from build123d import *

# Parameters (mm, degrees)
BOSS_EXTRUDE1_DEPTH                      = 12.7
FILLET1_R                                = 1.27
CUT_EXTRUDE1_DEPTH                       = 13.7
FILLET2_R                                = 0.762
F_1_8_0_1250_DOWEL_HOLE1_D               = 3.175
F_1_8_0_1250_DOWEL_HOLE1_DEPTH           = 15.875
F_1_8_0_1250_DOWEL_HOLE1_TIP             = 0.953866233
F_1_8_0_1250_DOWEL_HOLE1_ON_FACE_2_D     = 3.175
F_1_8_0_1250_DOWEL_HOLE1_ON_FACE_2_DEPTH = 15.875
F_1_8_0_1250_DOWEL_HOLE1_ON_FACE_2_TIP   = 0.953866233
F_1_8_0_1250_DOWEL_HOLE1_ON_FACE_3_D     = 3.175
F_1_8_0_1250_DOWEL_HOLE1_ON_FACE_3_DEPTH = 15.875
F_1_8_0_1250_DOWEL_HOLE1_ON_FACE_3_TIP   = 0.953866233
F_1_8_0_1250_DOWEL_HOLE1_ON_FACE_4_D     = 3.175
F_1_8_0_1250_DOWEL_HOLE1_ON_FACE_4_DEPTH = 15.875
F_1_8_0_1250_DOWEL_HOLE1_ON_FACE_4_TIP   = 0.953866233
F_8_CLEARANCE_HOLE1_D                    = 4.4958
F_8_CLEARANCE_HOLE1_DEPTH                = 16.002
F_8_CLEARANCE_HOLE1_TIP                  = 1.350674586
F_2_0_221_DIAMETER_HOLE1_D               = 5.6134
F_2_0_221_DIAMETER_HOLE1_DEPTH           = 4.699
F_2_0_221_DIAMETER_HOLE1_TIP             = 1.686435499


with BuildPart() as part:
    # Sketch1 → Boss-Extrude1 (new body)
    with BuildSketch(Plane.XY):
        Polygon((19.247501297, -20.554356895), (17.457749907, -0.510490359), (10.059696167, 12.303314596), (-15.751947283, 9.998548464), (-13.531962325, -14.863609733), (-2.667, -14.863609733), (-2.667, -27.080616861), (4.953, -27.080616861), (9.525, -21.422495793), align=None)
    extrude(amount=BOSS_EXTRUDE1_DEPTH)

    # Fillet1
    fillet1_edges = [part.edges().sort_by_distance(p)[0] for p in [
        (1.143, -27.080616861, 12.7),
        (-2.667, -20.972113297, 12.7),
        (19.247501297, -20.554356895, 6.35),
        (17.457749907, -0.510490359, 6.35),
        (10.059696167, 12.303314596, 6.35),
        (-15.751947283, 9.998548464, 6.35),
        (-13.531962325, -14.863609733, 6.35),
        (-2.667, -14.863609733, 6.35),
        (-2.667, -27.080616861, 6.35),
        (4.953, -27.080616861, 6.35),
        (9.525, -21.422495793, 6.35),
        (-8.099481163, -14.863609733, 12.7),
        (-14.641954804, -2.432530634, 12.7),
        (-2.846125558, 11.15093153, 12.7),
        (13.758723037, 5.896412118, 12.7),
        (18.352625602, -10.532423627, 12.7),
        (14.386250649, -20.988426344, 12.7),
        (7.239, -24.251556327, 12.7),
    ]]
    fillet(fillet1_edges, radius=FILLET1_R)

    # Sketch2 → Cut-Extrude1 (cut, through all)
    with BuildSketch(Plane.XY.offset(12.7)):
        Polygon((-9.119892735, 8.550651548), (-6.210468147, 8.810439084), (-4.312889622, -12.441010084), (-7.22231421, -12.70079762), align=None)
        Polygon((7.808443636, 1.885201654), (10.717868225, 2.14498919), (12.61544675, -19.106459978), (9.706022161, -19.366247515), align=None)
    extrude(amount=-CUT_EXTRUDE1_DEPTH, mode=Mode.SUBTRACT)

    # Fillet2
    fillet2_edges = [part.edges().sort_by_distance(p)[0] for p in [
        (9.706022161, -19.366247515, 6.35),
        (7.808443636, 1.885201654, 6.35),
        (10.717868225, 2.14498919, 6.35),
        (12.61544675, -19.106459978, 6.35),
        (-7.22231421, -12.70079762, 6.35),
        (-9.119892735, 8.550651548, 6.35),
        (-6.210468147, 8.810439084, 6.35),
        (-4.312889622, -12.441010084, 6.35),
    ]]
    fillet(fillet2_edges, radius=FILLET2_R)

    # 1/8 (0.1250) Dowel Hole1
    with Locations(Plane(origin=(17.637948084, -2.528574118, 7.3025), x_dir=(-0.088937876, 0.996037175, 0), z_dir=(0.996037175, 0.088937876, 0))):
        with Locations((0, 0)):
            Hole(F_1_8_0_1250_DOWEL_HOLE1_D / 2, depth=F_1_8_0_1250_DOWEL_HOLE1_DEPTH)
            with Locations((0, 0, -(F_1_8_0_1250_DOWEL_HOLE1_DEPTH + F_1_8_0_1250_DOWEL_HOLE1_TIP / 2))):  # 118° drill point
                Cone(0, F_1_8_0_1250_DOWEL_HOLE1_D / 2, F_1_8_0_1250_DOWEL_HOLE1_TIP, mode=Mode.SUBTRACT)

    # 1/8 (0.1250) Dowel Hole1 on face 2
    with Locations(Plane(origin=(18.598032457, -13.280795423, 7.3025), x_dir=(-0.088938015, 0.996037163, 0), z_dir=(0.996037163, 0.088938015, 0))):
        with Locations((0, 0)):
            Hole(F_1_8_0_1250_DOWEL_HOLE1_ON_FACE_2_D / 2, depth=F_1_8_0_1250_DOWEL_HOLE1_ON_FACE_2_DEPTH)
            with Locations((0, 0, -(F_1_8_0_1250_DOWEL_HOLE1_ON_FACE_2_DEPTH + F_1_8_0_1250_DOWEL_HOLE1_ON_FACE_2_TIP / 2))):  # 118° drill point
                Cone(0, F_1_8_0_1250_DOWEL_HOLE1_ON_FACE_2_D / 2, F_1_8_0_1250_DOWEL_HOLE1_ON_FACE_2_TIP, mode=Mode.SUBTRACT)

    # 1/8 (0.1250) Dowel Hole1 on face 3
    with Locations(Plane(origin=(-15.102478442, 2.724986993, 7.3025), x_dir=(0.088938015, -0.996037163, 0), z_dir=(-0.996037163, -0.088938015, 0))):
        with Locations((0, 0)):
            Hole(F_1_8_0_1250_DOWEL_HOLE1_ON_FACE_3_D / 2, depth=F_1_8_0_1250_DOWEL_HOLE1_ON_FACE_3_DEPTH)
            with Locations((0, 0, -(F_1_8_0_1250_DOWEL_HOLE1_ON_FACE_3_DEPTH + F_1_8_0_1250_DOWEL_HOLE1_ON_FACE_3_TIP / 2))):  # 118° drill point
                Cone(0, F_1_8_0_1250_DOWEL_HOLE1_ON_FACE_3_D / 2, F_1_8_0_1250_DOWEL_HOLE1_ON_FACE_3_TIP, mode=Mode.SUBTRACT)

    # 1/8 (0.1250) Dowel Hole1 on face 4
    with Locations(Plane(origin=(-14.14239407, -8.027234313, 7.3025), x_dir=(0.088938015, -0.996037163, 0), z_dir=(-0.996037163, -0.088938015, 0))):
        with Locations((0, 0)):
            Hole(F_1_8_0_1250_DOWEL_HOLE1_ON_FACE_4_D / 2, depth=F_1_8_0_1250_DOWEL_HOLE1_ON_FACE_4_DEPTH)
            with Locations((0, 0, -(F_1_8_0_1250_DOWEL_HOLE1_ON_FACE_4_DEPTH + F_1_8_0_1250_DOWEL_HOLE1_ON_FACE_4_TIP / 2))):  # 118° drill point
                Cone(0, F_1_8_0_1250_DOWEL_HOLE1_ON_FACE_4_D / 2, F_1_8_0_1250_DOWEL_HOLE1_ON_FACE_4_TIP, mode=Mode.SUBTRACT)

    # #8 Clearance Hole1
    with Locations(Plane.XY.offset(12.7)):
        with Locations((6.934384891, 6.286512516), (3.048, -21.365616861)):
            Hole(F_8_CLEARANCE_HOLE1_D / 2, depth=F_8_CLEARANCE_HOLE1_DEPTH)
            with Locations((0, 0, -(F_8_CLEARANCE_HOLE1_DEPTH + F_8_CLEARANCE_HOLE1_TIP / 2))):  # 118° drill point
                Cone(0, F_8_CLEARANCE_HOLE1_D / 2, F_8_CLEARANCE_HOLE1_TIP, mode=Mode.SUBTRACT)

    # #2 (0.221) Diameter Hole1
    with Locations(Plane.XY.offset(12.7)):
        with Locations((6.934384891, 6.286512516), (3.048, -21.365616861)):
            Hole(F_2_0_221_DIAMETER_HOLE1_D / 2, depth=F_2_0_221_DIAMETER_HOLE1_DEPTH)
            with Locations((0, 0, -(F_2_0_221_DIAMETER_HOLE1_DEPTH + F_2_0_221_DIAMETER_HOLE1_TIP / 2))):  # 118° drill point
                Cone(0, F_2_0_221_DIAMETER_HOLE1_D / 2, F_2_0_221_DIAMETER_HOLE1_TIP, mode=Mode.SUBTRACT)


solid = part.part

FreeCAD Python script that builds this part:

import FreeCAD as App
import Part
import Sketcher
from FreeCAD import Vector
Q = App.Units.Quantity


def edges_at(feature, points):
    """Names of the edges that pass closest to the given points."""
    edges = feature.Shape.Edges
    near = lambda p: min(range(len(edges)), key=lambda i: edges[i].distToShape(Part.Vertex(*p))[0])
    return sorted({f"Edge{near(p) + 1}" for p in points})


def add_polygon(sketch, points):
    """Adds a closed chain of lines whose ends are joined by coincident constraints."""
    first, n = sketch.GeometryCount, len(points)
    for a, b in zip(points, points[1:] + points[:1]):
        sketch.addGeometry(Part.LineSegment(App.Vector(*a, 0), App.Vector(*b, 0)), False)
    for i in range(n):
        sketch.addConstraint(Sketcher.Constraint("Coincident", first + i, 2, first + (i + 1) % n, 1))

doc = App.newDocument("Part")
body = doc.addObject("PartDesign::Body", "Body")

# Sketch on XY plane
sketch1 = doc.addObject("Sketcher::SketchObject", "Sketch")
body.addObject(sketch1)
sketch1.AttachmentSupport = (doc.XY_Plane, [""])
sketch1.MapMode = "FlatFace"
add_polygon(sketch1, [(19, -21), (17, -1), (10, 12), (-16, 10), (-14, -15), (-3, -15), (-3, -27), (5, -27), (10, -21)])  # lines 0-8
sketch1.addConstraint([
    Sketcher.Constraint("Horizontal", 4),
    Sketcher.Constraint("Vertical", 5),
    Sketcher.Constraint("Horizontal", 6),
    Sketcher.Constraint("Perpendicular", 0, 2),
    Sketcher.Constraint("Perpendicular", 2, 3),
    Sketcher.Constraint("Perpendicular", 3, 8),
    Sketcher.Constraint("DistanceX", 6, 1, 6, 2, Q("0.3 in")),
    Sketcher.Constraint("Angle", 1, Q("120 deg")),
    Sketcher.Constraint("DistanceX", 6, 2, 7, 2, Q("0.18 in")),
    Sketcher.Constraint("DistanceX", 4, 2, -1, 1, Q("0.105 in")),
    Sketcher.Constraint("DistanceX", -1, 1, 8, 2, 19.247501),
    Sketcher.Constraint("DistanceX", 4, 1, 4, 2, 10.864962),
    Sketcher.Constraint("DistanceY", 5, 2, 5, 1, 12.217007),
    Sketcher.Constraint("DistanceX", -1, 1, 0, 2, 17.45775),
    Sketcher.Constraint("DistanceY", 0, 2, -1, 1, 0.51049),
    Sketcher.Constraint("DistanceY", -1, 1, 2, 2, 9.998548),
    Sketcher.Constraint("DistanceY", 3, 2, -1, 1, 14.86361),
    Sketcher.Constraint("DistanceX", 3, 2, 1, 2, 23.591658),
])
pad1 = doc.addObject("PartDesign::Pad", "Pad")
body.addObject(pad1)
pad1.Profile = sketch1
pad1.Length = Q("0.5 in")
doc.recompute()

fillet = doc.addObject("PartDesign::Fillet", "Fillet")
body.addObject(fillet)
fillet.Base = (pad1, edges_at(pad1, [
    (1.143, -27.081, 12.7),
    (-2.667, -20.972, 12.7),
    (19.248, -20.554, 6.35),
    (17.458, -0.51, 6.35),
    (10.06, 12.303, 6.35),
    (-15.752, 9.999, 6.35),
    (-13.532, -14.864, 6.35),
    (-2.667, -14.864, 6.35),
    (-2.667, -27.081, 6.35),
    (4.953, -27.081, 6.35),
    (9.525, -21.422, 6.35),
    (-8.099, -14.864, 12.7),
    (-14.642, -2.433, 12.7),
    (-2.846, 11.151, 12.7),
    (13.759, 5.896, 12.7),
    (18.353, -10.532, 12.7),
    (14.386, -20.988, 12.7),
    (7.239, -24.252, 12.7),
]))
fillet.Radius = Q("0.05 in")

# Sketch on XY plane
sketch2 = doc.addObject("Sketcher::SketchObject", "Sketch001")
body.addObject(sketch2)
sketch2.AttachmentSupport = (doc.XY_Plane, [""])
sketch2.MapMode = "FlatFace"
sketch2.AttachmentOffset = App.Placement(Vector(0, 0, 0.5 * 25.4), App.Rotation())
add_polygon(sketch2, [(-6.2, 8.8), (-9.1, 8.6), (-7.2, -12.7), (-4.3, -12.4)])  # lines 0-3
add_polygon(sketch2, [(10.7, 2.1), (7.8, 1.9), (9.7, -19.4), (12.6, -19.1)])  # lines 4-7
sketch2.addConstraint([
    Sketcher.Constraint("Perpendicular", 0, 1),
    Sketcher.Constraint("Perpendicular", 1, 2),
    Sketcher.Constraint("Perpendicular", 2, 3),
    Sketcher.Constraint("Perpendicular", 3, 4),
    Sketcher.Constraint("Perpendicular", 4, 5),
    Sketcher.Constraint("Perpendicular", 5, 6),
    Sketcher.Constraint("Perpendicular", 6, 7),
    Sketcher.Constraint("Equal", 2, 4),
    Sketcher.Constraint("Equal", 3, 5),
    Sketcher.Constraint("Distance", 1, Q("0.84 in")),
    Sketcher.Constraint("Distance", 0, Q("0.115 in")),
    Sketcher.Constraint("DistanceY", -1, 1, 4, 2, 1.885202),
    Sketcher.Constraint("DistanceY", 1, 2, 4, 2, 14.585999),
    Sketcher.Constraint("DistanceY", 5, 2, 0, 2, 27.916899),
    Sketcher.Constraint("DistanceX", 2, 2, -1, 1, 4.31289),
    Sketcher.Constraint("DistanceX", -1, 1, 7, 2, 10.717868),
])
pocket1 = doc.addObject("PartDesign::Pocket", "Pocket")
body.addObject(pocket1)
pocket1.Profile = sketch2
pocket1.Type = "ThroughAll"
doc.recompute()

fillet2 = doc.addObject("PartDesign::Fillet", "Fillet001")
body.addObject(fillet2)
fillet2.Base = (pocket1, edges_at(pocket1, [
    (9.706, -19.366, 6.35),
    (7.808, 1.885, 6.35),
    (10.718, 2.145, 6.35),
    (12.615, -19.106, 6.35),
    (-7.222, -12.701, 6.35),
    (-9.12, 8.551, 6.35),
    (-6.21, 8.81, 6.35),
    (-4.313, -12.441, 6.35),
]))
fillet2.Radius = Q("0.03 in")

# Sketch on an angled plane
sketch3 = doc.addObject("Sketcher::SketchObject", "Sketch002")
body.addObject(sketch3)
sketch3.Placement = App.Placement(Vector(17.274438, 1.542464, 0), App.Rotation(Vector(-0.088937876, 0.996037175, 0), Vector(0, 0, 1), Vector(0.996037175, 0.088937876, 0), "ZXY"))
sketch3.addGeometry(Part.Circle(Vector(-4.1, 7.3, 0), Vector(0, 0, 1), 1.6), False)
sketch3.addConstraint([
    Sketcher.Constraint("Diameter", 0, Q("0.125 in")),
    Sketcher.Constraint("DistanceY", -1, 1, 0, 3, Q("0.2875 in")),
    Sketcher.Constraint("DistanceX", 0, 3, -1, 1, 4.087235),
])
doc.recompute()
hole = doc.addObject("PartDesign::Hole", "Hole")
body.addObject(hole)
hole.Profile = sketch3
hole.ThreadType = "None"
hole.Diameter = Q("0.125 in")
hole.DepthType = "Dimension"
hole.Depth = Q("0.625 in")
hole.DrillPoint = "Angled"
hole.DrillPointAngle = 118

# Sketch on an angled plane
sketch4 = doc.addObject("Sketcher::SketchObject", "Sketch003")
body.addObject(sketch4)
sketch4.Placement = App.Placement(Vector(17.274436, 1.542467, 0), App.Rotation(Vector(-0.088938015, 0.996037163, 0), Vector(0, 0, 1.000000001), Vector(0.996037163, 0.088938015, 0), "ZXY"))
sketch4.addGeometry(Part.Circle(Vector(-14.9, 7.3, 0), Vector(0, 0, 1), 1.6), False)
sketch4.addConstraint([
    Sketcher.Constraint("Diameter", 0, Q("0.125 in")),
    Sketcher.Constraint("DistanceY", -1, 1, 0, 3, Q("0.2875 in")),
    Sketcher.Constraint("DistanceX", 0, 3, -1, 1, 14.882238),
])
doc.recompute()
hole2 = doc.addObject("PartDesign::Hole", "Hole001")
body.addObject(hole2)
hole2.Profile = sketch4
hole2.ThreadType = "None"
hole2.Diameter = Q("0.125 in")
hole2.DepthType = "Dimension"
hole2.Depth = Q("0.625 in")
hole2.DrillPoint = "Angled"
hole2.DrillPointAngle = 118

# Sketch on an angled plane
sketch5 = doc.addObject("Sketcher::SketchObject", "Sketch004")
body.addObject(sketch5)
sketch5.Placement = App.Placement(Vector(-14.741624, -1.316307, 0), App.Rotation(Vector(0.088938015, -0.996037163, 0), Vector(0, 0, 1.000000001), Vector(-0.996037163, -0.088938015, 0), "ZXY"))
sketch5.addGeometry(Part.Circle(Vector(-4.1, 7.3, 0), Vector(0, 0, 1), 1.6), False)
sketch5.addConstraint([
    Sketcher.Constraint("Diameter", 0, Q("0.125 in")),
    Sketcher.Constraint("DistanceY", -1, 1, 0, 3, Q("0.2875 in")),
    Sketcher.Constraint("DistanceX", 0, 3, -1, 1, 4.057373),
])
doc.recompute()
hole3 = doc.addObject("PartDesign::Hole", "Hole002")
body.addObject(hole3)
hole3.Profile = sketch5
hole3.ThreadType = "None"
hole3.Diameter = Q("0.125 in")
hole3.DepthType = "Dimension"
hole3.Depth = Q("0.625 in")
hole3.DrillPoint = "Angled"
hole3.DrillPointAngle = 118

# Sketch on an angled plane
sketch6 = doc.addObject("Sketcher::SketchObject", "Sketch005")
body.addObject(sketch6)
sketch6.Placement = App.Placement(Vector(-14.741625, -1.316307, 0), App.Rotation(Vector(0.088938015, -0.996037163, 0), Vector(0, 0, 1.000000001), Vector(-0.996037163, -0.088938015, 0), "ZXY"))
sketch6.addGeometry(Part.Circle(Vector(6.7, 7.3, 0), Vector(0, 0, 1), 1.6), False)
sketch6.addConstraint([
    Sketcher.Constraint("Diameter", 0, Q("0.125 in")),
    Sketcher.Constraint("DistanceY", -1, 1, 0, 3, Q("0.2875 in")),
    Sketcher.Constraint("DistanceX", -1, 1, 0, 3, 6.737627),
])
doc.recompute()
hole4 = doc.addObject("PartDesign::Hole", "Hole003")
body.addObject(hole4)
hole4.Profile = sketch6
hole4.ThreadType = "None"
hole4.Diameter = Q("0.125 in")
hole4.DepthType = "Dimension"
hole4.Depth = Q("0.625 in")
hole4.DrillPoint = "Angled"
hole4.DrillPointAngle = 118

# Sketch on XY plane
sketch7 = doc.addObject("Sketcher::SketchObject", "Sketch006")
body.addObject(sketch7)
sketch7.AttachmentSupport = (doc.XY_Plane, [""])
sketch7.MapMode = "FlatFace"
sketch7.AttachmentOffset = App.Placement(Vector(0, 0, 0.5 * 25.4), App.Rotation())
sketch7.addGeometry([
    Part.Circle(Vector(6.9, 6.3, 0), Vector(0, 0, 1), 2.2),
    Part.Circle(Vector(3, -21.4, 0), Vector(0, 0, 1), 2.2),
], False)
sketch7.addConstraint([
    Sketcher.Constraint("Equal", 0, 1),
    Sketcher.Constraint("Diameter", 0, Q("0.177 in")),
    Sketcher.Constraint("DistanceX", -1, 1, 1, 3, Q("0.12 in")),
    Sketcher.Constraint("DistanceY", 1, 3, 0, 3, 27.652129),
    Sketcher.Constraint("DistanceX", -1, 1, 0, 3, 6.934385),
    Sketcher.Constraint("DistanceY", -1, 1, 0, 3, 6.286513),
])
doc.recompute()
hole5 = doc.addObject("PartDesign::Hole", "Hole004")
body.addObject(hole5)
hole5.Profile = sketch7
hole5.ThreadType = "None"
hole5.Diameter = Q("0.177 in")
hole5.DepthType = "Dimension"
hole5.Depth = Q("0.63 in")
hole5.DrillPoint = "Angled"
hole5.DrillPointAngle = 118

# Sketch on XY plane
sketch8 = doc.addObject("Sketcher::SketchObject", "Sketch007")
body.addObject(sketch8)
sketch8.AttachmentSupport = (doc.XY_Plane, [""])
sketch8.MapMode = "FlatFace"
sketch8.AttachmentOffset = App.Placement(Vector(0, 0, 0.5 * 25.4), App.Rotation())
sketch8.addGeometry([
    Part.Circle(Vector(6.9, 6.3, 0), Vector(0, 0, 1), 2.8),
    Part.Circle(Vector(3, -21.4, 0), Vector(0, 0, 1), 2.8),
], False)
sketch8.addConstraint([
    Sketcher.Constraint("Equal", 0, 1),
    Sketcher.Constraint("Diameter", 0, Q("0.221 in")),
    Sketcher.Constraint("DistanceX", -1, 1, 1, 3, Q("0.12 in")),
    Sketcher.Constraint("DistanceY", 1, 3, 0, 3, 27.652129),
    Sketcher.Constraint("DistanceX", -1, 1, 0, 3, 6.934385),
    Sketcher.Constraint("DistanceY", -1, 1, 0, 3, 6.286513),
])
doc.recompute()
hole6 = doc.addObject("PartDesign::Hole", "Hole005")
body.addObject(hole6)
hole6.Profile = sketch8
hole6.ThreadType = "None"
hole6.Diameter = Q("0.221 in")
hole6.DepthType = "Dimension"
hole6.Depth = Q("0.185 in")
hole6.DrillPoint = "Angled"
hole6.DrillPointAngle = 118

doc.recompute()
